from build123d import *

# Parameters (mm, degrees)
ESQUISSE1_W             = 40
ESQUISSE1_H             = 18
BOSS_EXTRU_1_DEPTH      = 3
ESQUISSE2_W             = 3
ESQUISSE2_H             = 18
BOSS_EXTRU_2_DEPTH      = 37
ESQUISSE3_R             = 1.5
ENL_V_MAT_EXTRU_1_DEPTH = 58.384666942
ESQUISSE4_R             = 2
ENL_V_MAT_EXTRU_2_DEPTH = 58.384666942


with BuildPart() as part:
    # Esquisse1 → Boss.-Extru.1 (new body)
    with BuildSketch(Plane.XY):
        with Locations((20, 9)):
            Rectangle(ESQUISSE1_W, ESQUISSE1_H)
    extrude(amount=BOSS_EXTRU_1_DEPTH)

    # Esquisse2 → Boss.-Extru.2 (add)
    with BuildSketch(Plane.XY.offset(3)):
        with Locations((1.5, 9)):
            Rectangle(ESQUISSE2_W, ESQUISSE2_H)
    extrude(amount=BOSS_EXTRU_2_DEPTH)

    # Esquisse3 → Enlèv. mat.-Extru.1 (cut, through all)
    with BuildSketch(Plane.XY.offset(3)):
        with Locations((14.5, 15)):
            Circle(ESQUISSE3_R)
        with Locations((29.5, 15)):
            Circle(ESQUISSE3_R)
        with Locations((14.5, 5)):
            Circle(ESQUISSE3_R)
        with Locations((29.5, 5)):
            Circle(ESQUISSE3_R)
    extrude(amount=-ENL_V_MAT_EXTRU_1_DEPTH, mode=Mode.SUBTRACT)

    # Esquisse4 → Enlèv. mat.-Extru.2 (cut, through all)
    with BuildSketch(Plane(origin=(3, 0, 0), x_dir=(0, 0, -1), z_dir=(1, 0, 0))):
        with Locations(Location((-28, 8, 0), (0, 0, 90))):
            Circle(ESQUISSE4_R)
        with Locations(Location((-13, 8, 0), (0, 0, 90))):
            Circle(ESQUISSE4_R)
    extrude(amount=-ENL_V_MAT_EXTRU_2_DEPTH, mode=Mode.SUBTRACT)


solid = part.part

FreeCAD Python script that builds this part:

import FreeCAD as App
import Part
import Sketcher
Q = App.Units.Quantity


def add_polygon(sketch, points):
    """Adds a closed chain of lines whose ends are joined by coincident constraints."""
    first, n = sketch.GeometryCount, len(points)
    for a, b in zip(points, points[1:] + points[:1]):
        sketch.addGeometry(Part.LineSegment(App.Vector(*a, 0), App.Vector(*b, 0)), False)
    for i in range(n):
        sketch.addConstraint(Sketcher.Constraint("Coincident", first + i, 2, first + (i + 1) % n, 1))

doc = App.newDocument("Part")
body = doc.addObject("PartDesign::Body", "Body")

sketch1 = body.newObject("Sketcher::SketchObject", "Sketch")
sketch1.AttachmentSupport = (doc.getObject("XY_Plane"), [""])
sketch1.MapMode = "FlatFace"
add_polygon(sketch1, [(0, 18), (0, 0), (40, 0), (40, 18)])
sketch1.addConstraint(Sketcher.Constraint("Vertical", 0))
sketch1.addConstraint(Sketcher.Constraint("Horizontal", 1))
sketch1.addConstraint(Sketcher.Constraint("Vertical", 2))
sketch1.addConstraint(Sketcher.Constraint("Horizontal", 3))
sketch1.addConstraint(Sketcher.Constraint("Coincident", 0, 2, -1, 1))
sketch1.addConstraint(Sketcher.Constraint("DistanceX", 1, 1, 1, 2, Q("40 mm")))
sketch1.addConstraint(Sketcher.Constraint("DistanceY", 0, 2, 0, 1, Q("18 mm")))
pad1 = body.newObject("PartDesign::Pad", "Pad")
pad1.Profile = sketch1
pad1.Length = 3

sketch2 = body.newObject("Sketcher::SketchObject", "Sketch001")
sketch2.AttachmentSupport = (doc.getObject("XY_Plane"), [""])
sketch2.MapMode = "FlatFace"
sketch2.AttachmentOffset = App.Placement(App.Vector(0, 0, 3), App.Rotation())
add_polygon(sketch2, [(0, 18), (0, 0), (3, 0), (3, 18)])
sketch2.addConstraint(Sketcher.Constraint("Vertical", 0))
sketch2.addConstraint(Sketcher.Constraint("Horizontal", 1))
sketch2.addConstraint(Sketcher.Constraint("Vertical", 2))
sketch2.addConstraint(Sketcher.Constraint("Horizontal", 3))
sketch2.addConstraint(Sketcher.Constraint("Coincident", 0, 2, -1, 1))
sketch2.addConstraint(Sketcher.Constraint("DistanceX", 1, 1, 1, 2, Q("3 mm")))
sketch2.addConstraint(Sketcher.Constraint("DistanceY", 0, 2, 0, 1, Q("18 mm")))
pad2 = body.newObject("PartDesign::Pad", "Pad001")
pad2.Profile = sketch2
pad2.Length = 37

sketch3 = body.newObject("Sketcher::SketchObject", "Sketch002")
sketch3.AttachmentSupport = (doc.getObject("XY_Plane"), [""])
sketch3.MapMode = "FlatFace"
sketch3.AttachmentOffset = App.Placement(App.Vector(0, 0, 3), App.Rotation())
sketch3.addGeometry(Part.Circle(App.Vector(14.5, 15, 0), App.Vector(0, 0, 1), 1.5), False)
sketch3.addGeometry(Part.Circle(App.Vector(29.5, 15, 0), App.Vector(0, 0, 1), 1.5), False)
sketch3.addGeometry(Part.Circle(App.Vector(14.5, 5, 0), App.Vector(0, 0, 1), 1.5), False)
sketch3.addGeometry(Part.Circle(App.Vector(29.5, 5, 0), App.Vector(0, 0, 1), 1.5), False)
sketch3.addConstraint(Sketcher.Constraint("Equal", 0, 1))
sketch3.addConstraint(Sketcher.Constraint("Equal", 1, 2))
sketch3.addConstraint(Sketcher.Constraint("Equal", 2, 3))
sketch3.addConstraint(Sketcher.Constraint("Horizontal", 0, 3, 1, 3))
sketch3.addConstraint(Sketcher.Constraint("Horizontal", 2, 3, 3, 3))
sketch3.addConstraint(Sketcher.Constraint("Vertical", 0, 3, 2, 3))
sketch3.addConstraint(Sketcher.Constraint("Vertical", 1, 3, 3, 3))
sketch3.addConstraint(Sketcher.Constraint("Diameter", 0, Q("3 mm")))
sketch3.addConstraint(Sketcher.Constraint("DistanceY", -1, 1, 0, 3, Q("15 mm")))
sketch3.addConstraint(Sketcher.Constraint("DistanceY", -1, 1, 2, 3, Q("5 mm")))
sketch3.addConstraint(Sketcher.Constraint("DistanceX", 0, 3, 1, 3, Q("15 mm")))
sketch3.addConstraint(Sketcher.Constraint("DistanceX", -1, 1, 0, 3, Q("14.5 mm")))
pocket1 = body.newObject("PartDesign::Pocket", "Pocket")
pocket1.Profile = sketch3
pocket1.Type = "ThroughAll"

sketch4 = body.newObject("Sketcher::SketchObject", "Sketch003")
sketch4.AttachmentSupport = (doc.getObject("YZ_Plane"), [""])
sketch4.MapMode = "FlatFace"
sketch4.AttachmentOffset = App.Placement(App.Vector(0, 0, 3), App.Rotation())
sketch4.addGeometry(Part.Circle(App.Vector(8, 28, 0), App.Vector(0, 0, 1), 2), False)
sketch4.addGeometry(Part.Circle(App.Vector(8, 13, 0), App.Vector(0, 0, 1), 2), False)
sketch4.addConstraint(Sketcher.Constraint("Equal", 0, 1))
sketch4.addConstraint(Sketcher.Constraint("Vertical", 0, 3, 1, 3))
sketch4.addConstraint(Sketcher.Constraint("Diameter", 0, Q("4 mm")))
sketch4.addConstraint(Sketcher.Constraint("DistanceX", -1, 1, 0, 3, Q("8 mm")))
sketch4.addConstraint(Sketcher.Constraint("DistanceY", -1, 1, 0, 3, Q("28 mm")))
sketch4.addConstraint(Sketcher.Constraint("DistanceY", -1, 1, 1, 3, Q("13 mm")))
pocket2 = body.newObject("PartDesign::Pocket", "Pocket001")
pocket2.Profile = sketch4
pocket2.Type = "ThroughAll"

doc.recompute()
